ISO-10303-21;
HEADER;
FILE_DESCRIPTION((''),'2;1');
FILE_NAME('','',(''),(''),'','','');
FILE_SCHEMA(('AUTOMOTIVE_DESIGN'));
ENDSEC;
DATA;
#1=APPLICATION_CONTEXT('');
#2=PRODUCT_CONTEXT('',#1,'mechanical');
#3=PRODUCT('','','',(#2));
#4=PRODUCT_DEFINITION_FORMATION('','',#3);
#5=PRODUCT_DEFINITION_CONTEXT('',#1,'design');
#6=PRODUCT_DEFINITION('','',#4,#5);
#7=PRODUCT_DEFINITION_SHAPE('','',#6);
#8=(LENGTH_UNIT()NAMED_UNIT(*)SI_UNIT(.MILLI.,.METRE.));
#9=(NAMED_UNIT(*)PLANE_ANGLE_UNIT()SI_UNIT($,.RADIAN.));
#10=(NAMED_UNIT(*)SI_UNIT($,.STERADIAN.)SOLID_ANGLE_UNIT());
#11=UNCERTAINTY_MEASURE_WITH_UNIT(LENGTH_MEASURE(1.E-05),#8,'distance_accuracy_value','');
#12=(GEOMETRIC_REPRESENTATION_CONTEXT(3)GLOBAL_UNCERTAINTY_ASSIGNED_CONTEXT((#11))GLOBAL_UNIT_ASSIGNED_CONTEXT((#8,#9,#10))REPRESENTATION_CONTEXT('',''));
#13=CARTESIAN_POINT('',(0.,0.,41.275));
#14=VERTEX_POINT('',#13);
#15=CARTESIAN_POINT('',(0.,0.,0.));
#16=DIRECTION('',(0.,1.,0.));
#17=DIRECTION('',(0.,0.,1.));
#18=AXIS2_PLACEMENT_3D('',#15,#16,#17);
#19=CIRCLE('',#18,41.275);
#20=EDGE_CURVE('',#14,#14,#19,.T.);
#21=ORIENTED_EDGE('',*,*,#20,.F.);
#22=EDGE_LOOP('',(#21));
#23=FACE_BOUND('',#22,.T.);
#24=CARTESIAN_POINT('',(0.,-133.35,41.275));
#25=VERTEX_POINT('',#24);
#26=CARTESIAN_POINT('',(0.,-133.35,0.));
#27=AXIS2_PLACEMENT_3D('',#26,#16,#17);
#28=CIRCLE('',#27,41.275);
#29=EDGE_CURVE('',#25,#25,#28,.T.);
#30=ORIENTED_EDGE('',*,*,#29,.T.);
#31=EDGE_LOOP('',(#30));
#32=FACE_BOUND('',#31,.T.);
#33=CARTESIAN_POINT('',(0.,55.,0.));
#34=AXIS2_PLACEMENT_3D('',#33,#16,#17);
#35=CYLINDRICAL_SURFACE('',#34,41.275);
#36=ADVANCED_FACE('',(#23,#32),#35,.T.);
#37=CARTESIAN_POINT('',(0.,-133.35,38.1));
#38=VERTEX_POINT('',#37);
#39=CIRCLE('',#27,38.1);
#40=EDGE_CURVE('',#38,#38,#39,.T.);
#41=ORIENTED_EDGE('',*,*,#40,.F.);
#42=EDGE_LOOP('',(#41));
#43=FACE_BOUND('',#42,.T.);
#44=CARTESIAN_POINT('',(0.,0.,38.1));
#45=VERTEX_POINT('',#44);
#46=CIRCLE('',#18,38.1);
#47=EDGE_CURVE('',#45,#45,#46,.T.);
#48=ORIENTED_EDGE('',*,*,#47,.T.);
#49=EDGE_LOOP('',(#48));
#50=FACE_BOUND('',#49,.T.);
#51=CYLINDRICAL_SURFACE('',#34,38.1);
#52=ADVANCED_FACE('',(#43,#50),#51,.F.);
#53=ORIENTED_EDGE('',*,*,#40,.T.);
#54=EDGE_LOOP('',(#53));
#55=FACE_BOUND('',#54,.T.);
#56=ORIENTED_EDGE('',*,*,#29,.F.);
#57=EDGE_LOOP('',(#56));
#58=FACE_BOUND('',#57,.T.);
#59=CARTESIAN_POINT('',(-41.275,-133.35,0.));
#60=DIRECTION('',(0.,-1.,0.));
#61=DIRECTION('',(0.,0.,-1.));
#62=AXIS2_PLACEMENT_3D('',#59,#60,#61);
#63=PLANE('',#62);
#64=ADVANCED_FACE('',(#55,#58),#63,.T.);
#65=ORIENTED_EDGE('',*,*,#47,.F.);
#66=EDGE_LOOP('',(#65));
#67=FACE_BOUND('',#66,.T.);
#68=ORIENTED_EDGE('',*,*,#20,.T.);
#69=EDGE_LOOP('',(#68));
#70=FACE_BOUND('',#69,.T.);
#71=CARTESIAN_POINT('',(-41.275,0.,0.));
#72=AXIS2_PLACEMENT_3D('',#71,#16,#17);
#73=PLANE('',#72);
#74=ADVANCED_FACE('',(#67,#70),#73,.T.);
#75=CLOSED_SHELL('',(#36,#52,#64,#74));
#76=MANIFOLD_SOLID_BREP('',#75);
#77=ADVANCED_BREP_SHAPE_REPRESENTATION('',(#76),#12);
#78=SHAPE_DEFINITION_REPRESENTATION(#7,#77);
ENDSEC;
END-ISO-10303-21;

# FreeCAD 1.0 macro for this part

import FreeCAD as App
import Part
import Sketcher
Q = App.Units.Quantity

doc = App.newDocument("Part")
params = doc.addObject("Spreadsheet::Sheet", "Params")
for row, (alias, value) in enumerate([
    ("sketch1_height", "5.25 in"),
    ("sketch1_width", "0.125 in"),
    ("revolution_angle", "360 deg"),
], start=1):
    params.set(f"A{row}", alias)
    params.set(f"B{row}", "=" + value)
    params.setAlias(f"B{row}", alias)

body = doc.addObject("PartDesign::Body", "Body")

# Sketch on XY plane
sketch1 = body.newObject("Sketcher::SketchObject", "Sketch")
sketch1.AttachmentSupport = (doc.getObject("XY_Plane"), [""])
sketch1.MapMode = "FlatFace"
sketch1.addGeometry([
    Part.LineSegment(App.Vector(-41.3, 0, 0), App.Vector(-41.3, -133.3, 0)),
    Part.LineSegment(App.Vector(-41.3, -133.3, 0), App.Vector(-38.1, -133.3, 0)),
    Part.LineSegment(App.Vector(-38.1, -133.3, 0), App.Vector(-38.1, 0, 0)),
    Part.LineSegment(App.Vector(-38.1, 0, 0), App.Vector(-41.3, 0, 0)),
], False)
sketch1.addConstraint([
    Sketcher.Constraint("Coincident", 0, 2, 1, 1),
    Sketcher.Constraint("Coincident", 1, 2, 2, 1),
    Sketcher.Constraint("Coincident", 2, 2, 3, 1),
    Sketcher.Constraint("Coincident", 3, 2, 0, 1),
    Sketcher.Constraint("Vertical", 0),
    Sketcher.Constraint("Horizontal", 1),
    Sketcher.Constraint("Vertical", 2),
    Sketcher.Constraint("Horizontal", 3),
    Sketcher.Constraint("PointOnObject", 2, 2, -1),
    Sketcher.Constraint("DistanceY", 0, 2, 0, 1, Q("5.25 in")),
    Sketcher.Constraint("DistanceX", 1, 2, -1, 1, Q("1.5 in")),
    Sketcher.Constraint("DistanceX", 1, 1, 1, 2, Q("0.125 in")),
])
sketch1.setExpression("Constraints[9]", "Params.sketch1_height")
sketch1.setExpression("Constraints[11]", "Params.sketch1_width")
revolution = body.newObject("PartDesign::Revolution", "Revolution")
revolution.Profile = sketch1
revolution.ReferenceAxis = (sketch1, ["V_Axis"])
revolution.setExpression("Angle", "Params.revolution_angle")

doc.recompute()
